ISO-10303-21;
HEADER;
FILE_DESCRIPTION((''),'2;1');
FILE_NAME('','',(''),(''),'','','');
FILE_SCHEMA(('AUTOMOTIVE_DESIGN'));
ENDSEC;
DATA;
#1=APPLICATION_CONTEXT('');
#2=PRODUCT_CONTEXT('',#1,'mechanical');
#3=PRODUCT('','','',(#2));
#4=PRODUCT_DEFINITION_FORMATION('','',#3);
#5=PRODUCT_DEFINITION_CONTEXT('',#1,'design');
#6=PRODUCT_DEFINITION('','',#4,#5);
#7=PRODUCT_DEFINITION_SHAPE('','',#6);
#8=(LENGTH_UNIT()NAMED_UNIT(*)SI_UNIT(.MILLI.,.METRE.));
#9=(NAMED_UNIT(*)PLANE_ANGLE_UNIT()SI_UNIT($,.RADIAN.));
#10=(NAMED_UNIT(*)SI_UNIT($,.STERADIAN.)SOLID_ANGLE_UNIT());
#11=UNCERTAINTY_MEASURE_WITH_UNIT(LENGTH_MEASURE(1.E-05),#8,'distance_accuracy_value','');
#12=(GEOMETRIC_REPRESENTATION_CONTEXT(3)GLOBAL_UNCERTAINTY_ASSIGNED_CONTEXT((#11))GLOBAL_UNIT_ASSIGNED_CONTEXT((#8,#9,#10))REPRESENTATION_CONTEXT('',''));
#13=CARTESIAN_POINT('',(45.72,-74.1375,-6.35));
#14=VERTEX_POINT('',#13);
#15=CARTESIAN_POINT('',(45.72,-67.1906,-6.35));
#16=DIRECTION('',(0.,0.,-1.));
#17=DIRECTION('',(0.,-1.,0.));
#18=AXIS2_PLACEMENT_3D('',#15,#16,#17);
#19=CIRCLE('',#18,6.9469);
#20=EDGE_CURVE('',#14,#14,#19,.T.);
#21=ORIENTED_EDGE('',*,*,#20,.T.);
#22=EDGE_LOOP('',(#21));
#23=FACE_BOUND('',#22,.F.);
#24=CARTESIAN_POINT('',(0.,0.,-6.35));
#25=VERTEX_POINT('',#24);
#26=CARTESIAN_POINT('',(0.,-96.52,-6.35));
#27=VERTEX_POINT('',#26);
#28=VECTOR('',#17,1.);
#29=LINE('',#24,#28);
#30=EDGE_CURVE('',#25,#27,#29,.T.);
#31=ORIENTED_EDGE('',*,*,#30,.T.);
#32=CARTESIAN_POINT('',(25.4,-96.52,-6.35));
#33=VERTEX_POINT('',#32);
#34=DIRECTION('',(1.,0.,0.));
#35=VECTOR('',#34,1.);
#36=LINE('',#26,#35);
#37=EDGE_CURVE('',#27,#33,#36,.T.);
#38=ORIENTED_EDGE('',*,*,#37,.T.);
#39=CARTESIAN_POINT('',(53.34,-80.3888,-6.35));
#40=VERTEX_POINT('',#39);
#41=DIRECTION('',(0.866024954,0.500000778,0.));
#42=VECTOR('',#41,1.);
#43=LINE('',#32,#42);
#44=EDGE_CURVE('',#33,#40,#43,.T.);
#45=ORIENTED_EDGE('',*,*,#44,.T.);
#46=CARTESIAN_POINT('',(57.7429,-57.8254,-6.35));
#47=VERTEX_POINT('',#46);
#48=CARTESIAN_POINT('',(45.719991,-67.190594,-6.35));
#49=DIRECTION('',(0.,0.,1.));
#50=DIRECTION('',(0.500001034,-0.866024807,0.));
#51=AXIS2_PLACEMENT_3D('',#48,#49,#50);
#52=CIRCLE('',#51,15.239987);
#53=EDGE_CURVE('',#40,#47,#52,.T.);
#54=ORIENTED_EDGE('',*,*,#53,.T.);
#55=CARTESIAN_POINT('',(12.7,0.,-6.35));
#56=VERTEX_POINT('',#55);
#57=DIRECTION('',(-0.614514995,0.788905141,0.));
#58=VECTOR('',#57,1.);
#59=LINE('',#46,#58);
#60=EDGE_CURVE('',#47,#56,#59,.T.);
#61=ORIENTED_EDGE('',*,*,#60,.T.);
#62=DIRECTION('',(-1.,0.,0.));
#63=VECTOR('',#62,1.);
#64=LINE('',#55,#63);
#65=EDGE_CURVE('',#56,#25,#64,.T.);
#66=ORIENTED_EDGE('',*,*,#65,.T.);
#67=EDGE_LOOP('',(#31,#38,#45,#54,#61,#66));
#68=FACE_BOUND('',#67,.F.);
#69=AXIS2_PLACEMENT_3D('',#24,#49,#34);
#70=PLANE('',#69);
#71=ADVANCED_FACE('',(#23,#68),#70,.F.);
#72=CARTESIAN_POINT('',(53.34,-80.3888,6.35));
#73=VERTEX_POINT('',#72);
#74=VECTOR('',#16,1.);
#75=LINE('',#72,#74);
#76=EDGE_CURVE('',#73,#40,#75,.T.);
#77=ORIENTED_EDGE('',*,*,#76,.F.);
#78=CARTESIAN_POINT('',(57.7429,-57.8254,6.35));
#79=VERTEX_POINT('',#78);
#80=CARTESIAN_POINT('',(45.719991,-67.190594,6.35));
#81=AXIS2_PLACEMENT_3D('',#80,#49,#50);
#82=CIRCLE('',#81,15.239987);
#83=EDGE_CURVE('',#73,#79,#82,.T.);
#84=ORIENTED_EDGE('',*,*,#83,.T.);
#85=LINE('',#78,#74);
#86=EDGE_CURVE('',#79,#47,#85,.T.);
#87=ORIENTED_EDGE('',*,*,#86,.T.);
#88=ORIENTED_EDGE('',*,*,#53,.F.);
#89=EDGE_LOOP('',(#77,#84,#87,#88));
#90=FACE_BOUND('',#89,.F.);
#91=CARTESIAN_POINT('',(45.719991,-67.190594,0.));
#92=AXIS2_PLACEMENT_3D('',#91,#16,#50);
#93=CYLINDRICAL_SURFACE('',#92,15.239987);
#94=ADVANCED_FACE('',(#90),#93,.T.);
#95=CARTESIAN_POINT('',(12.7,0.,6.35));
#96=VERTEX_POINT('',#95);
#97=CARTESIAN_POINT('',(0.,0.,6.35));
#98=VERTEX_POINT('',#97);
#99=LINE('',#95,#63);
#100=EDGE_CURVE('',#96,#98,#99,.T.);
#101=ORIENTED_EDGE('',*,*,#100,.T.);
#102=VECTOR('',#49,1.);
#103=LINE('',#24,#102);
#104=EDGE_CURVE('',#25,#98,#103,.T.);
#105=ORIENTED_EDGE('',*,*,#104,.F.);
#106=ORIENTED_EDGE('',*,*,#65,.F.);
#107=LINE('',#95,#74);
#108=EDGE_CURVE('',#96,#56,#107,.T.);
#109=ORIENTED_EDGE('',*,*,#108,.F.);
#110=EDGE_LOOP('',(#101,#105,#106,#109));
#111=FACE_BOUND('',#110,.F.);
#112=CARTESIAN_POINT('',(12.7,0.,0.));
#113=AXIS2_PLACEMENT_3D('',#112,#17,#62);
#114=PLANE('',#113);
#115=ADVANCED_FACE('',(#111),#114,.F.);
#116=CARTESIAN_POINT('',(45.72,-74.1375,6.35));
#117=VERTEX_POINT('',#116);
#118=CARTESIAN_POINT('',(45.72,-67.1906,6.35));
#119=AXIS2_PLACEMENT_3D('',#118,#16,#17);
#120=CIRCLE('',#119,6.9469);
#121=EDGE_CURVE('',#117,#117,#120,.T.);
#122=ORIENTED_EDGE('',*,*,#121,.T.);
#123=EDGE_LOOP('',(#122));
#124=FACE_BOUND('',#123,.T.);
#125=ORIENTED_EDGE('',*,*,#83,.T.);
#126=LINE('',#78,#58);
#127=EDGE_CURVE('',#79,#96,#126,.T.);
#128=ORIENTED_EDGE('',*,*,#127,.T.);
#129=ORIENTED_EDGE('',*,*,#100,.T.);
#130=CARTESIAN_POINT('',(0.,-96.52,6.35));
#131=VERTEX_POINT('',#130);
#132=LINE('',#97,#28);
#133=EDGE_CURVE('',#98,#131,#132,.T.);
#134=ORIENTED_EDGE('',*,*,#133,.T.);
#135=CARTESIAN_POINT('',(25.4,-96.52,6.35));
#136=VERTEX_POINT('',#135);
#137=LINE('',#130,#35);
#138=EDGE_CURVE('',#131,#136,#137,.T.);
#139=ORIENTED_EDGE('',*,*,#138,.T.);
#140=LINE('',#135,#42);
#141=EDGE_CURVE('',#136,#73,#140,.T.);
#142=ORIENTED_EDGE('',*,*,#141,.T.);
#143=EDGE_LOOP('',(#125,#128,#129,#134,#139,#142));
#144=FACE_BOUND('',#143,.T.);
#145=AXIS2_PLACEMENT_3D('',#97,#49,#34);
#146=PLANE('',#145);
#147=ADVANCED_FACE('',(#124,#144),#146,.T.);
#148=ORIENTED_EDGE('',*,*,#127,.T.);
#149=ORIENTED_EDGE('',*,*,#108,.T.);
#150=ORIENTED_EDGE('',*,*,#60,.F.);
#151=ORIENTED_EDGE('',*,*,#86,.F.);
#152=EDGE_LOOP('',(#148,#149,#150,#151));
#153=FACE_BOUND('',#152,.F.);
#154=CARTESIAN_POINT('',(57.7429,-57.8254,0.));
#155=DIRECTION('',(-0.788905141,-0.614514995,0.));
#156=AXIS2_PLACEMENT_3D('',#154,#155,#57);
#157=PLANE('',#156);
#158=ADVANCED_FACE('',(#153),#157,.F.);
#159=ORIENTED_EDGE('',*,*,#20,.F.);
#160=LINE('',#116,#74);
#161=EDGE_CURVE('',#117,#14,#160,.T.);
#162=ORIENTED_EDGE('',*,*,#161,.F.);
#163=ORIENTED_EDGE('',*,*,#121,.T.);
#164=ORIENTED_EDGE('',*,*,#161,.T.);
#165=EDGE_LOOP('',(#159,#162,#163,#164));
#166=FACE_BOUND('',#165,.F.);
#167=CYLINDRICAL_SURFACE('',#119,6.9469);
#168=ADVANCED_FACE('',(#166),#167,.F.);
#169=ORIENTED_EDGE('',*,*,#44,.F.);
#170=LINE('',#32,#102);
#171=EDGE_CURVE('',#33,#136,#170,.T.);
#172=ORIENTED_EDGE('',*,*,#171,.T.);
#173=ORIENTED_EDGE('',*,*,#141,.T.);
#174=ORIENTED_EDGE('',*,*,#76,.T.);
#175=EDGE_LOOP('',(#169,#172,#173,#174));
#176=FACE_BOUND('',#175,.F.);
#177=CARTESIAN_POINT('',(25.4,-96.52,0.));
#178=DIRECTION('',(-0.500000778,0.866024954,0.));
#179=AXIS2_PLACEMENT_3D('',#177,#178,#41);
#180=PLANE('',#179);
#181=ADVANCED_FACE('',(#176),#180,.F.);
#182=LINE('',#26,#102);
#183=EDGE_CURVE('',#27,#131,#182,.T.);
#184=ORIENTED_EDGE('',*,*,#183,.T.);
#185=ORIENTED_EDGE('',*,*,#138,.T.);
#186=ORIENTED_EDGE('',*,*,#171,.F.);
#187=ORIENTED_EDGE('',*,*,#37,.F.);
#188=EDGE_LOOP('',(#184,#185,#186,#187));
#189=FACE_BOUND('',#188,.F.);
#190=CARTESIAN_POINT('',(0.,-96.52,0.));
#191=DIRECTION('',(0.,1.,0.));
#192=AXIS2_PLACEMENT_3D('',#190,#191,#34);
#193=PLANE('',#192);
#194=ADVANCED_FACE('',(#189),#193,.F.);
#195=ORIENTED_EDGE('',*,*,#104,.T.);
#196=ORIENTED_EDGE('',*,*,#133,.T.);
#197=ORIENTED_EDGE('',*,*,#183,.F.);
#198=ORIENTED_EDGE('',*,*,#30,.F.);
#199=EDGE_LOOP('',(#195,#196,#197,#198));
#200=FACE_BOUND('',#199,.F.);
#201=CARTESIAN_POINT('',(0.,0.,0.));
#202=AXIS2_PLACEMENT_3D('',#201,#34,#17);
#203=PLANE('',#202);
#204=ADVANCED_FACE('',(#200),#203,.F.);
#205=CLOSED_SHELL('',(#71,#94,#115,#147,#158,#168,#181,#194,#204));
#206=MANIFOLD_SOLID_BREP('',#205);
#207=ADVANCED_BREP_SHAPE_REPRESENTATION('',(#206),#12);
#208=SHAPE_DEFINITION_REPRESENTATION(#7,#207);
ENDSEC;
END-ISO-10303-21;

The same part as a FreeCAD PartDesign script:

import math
import FreeCAD as App
import Part
import Sketcher

V = App.Vector
Q = App.Units.Quantity

doc = App.newDocument("Part")
params = doc.addObject("Spreadsheet::Sheet", "Params")
for row, (alias, value) in enumerate([
    ("sketch1_radius", "0.6 in"),
    ("sketch1_width", "1 in"),
    ("sketch1_width2", "0.5 in"),
    ("sketch1_height", "3.8 in"),
    ("pad1_length", "0.5 in"),
    ("sketch2_diameter", "0.547 in"),
    ("hole_diameter", "0.547 in"),
], start=1):
    params.set(f"A{row}", alias)
    params.set(f"B{row}", "=" + value)
    params.setAlias(f"B{row}", alias)

body = doc.addObject("PartDesign::Body", "Body")

# Sketch on XY plane
sketch1 = body.newObject("Sketcher::SketchObject", "Sketch")
sketch1.AttachmentSupport = (doc.getObject("XY_Plane"), [""])
sketch1.MapMode = "FlatFace"
sketch1.addGeometry([
    Part.LineSegment(V(13, 0, 0), V(0, 0, 0)),  # 0
    Part.LineSegment(V(0, 0, 0), V(0, -97, 0)),  # 1
    Part.LineSegment(V(0, -97, 0), V(25, -97, 0)),  # 2
    Part.LineSegment(V(25, -97, 0), V(53, -80, 0)),  # 3
    Part.ArcOfCircle(Part.Circle(V(46, -67, 0), V(0, 0, 1), 15), math.radians(-60), math.radians(38)),  # 4
    Part.LineSegment(V(58, -58, 0), V(13, 0, 0)),  # 5
], False)
sketch1.addConstraint([
    Sketcher.Constraint("Coincident", 0, 2, 1, 1),
    Sketcher.Constraint("Coincident", 1, 2, 2, 1),
    Sketcher.Constraint("Coincident", 2, 2, 3, 1),
    Sketcher.Constraint("Tangent", 3, 2, 4, 1),
    Sketcher.Constraint("Tangent", 4, 2, 5, 1),
    Sketcher.Constraint("Coincident", 5, 2, 0, 1),
    Sketcher.Constraint("Horizontal", 0),
    Sketcher.Constraint("Vertical", 1),
    Sketcher.Constraint("Horizontal", 2),
    Sketcher.Constraint("Coincident", 0, 2, -1, 1),
    Sketcher.Constraint("Radius", 4, Q("0.6 in")),
    Sketcher.Constraint("DistanceX", 2, 1, 2, 2, Q("1 in")),
    Sketcher.Constraint("DistanceX", 0, 2, 0, 1, Q("0.5 in")),
    Sketcher.Constraint("DistanceY", 1, 2, 1, 1, Q("3.8 in")),
    Sketcher.Constraint("Angle", 3, Q("30 deg")),
    Sketcher.Constraint("DistanceX", -1, 1, 4, 3, Q("1.8 in")),
])
sketch1.setExpression("Constraints[10]", "Params.sketch1_radius")
sketch1.setExpression("Constraints[11]", "Params.sketch1_width")
sketch1.setExpression("Constraints[12]", "Params.sketch1_width2")
sketch1.setExpression("Constraints[13]", "Params.sketch1_height")
pad1 = body.newObject("PartDesign::Pad", "Pad")
pad1.Profile = sketch1
pad1.setExpression("Length", "Params.pad1_length")
pad1.Midplane = True

# Sketch on XY plane
sketch2 = body.newObject("Sketcher::SketchObject", "Sketch001")
sketch2.AttachmentSupport = (doc.getObject("XY_Plane"), [""])
sketch2.MapMode = "FlatFace"
sketch2.AttachmentOffset = App.Placement(V(0, 0, 0.25 * 25.4), App.Rotation())
sketch2.addGeometry(Part.Circle(V(46, -67, 0), V(0, 0, 1), 7), False)
sketch2.addConstraint([
    Sketcher.Constraint("Diameter", 0, Q("0.547 in")),
    Sketcher.Constraint("DistanceX", -1, 1, 0, 3, Q("1.8 in")),
    Sketcher.Constraint("DistanceY", 0, 3, -1, 1, Q("2.6453 in")),
])
sketch2.setExpression("Constraints[0]", "Params.sketch2_diameter")
doc.recompute()
hole = body.newObject("PartDesign::Hole", "Hole")
hole.Profile = sketch2
hole.ThreadType = "None"
hole.setExpression("Diameter", "Params.hole_diameter")
hole.DepthType = "ThroughAll"

doc.recompute()
